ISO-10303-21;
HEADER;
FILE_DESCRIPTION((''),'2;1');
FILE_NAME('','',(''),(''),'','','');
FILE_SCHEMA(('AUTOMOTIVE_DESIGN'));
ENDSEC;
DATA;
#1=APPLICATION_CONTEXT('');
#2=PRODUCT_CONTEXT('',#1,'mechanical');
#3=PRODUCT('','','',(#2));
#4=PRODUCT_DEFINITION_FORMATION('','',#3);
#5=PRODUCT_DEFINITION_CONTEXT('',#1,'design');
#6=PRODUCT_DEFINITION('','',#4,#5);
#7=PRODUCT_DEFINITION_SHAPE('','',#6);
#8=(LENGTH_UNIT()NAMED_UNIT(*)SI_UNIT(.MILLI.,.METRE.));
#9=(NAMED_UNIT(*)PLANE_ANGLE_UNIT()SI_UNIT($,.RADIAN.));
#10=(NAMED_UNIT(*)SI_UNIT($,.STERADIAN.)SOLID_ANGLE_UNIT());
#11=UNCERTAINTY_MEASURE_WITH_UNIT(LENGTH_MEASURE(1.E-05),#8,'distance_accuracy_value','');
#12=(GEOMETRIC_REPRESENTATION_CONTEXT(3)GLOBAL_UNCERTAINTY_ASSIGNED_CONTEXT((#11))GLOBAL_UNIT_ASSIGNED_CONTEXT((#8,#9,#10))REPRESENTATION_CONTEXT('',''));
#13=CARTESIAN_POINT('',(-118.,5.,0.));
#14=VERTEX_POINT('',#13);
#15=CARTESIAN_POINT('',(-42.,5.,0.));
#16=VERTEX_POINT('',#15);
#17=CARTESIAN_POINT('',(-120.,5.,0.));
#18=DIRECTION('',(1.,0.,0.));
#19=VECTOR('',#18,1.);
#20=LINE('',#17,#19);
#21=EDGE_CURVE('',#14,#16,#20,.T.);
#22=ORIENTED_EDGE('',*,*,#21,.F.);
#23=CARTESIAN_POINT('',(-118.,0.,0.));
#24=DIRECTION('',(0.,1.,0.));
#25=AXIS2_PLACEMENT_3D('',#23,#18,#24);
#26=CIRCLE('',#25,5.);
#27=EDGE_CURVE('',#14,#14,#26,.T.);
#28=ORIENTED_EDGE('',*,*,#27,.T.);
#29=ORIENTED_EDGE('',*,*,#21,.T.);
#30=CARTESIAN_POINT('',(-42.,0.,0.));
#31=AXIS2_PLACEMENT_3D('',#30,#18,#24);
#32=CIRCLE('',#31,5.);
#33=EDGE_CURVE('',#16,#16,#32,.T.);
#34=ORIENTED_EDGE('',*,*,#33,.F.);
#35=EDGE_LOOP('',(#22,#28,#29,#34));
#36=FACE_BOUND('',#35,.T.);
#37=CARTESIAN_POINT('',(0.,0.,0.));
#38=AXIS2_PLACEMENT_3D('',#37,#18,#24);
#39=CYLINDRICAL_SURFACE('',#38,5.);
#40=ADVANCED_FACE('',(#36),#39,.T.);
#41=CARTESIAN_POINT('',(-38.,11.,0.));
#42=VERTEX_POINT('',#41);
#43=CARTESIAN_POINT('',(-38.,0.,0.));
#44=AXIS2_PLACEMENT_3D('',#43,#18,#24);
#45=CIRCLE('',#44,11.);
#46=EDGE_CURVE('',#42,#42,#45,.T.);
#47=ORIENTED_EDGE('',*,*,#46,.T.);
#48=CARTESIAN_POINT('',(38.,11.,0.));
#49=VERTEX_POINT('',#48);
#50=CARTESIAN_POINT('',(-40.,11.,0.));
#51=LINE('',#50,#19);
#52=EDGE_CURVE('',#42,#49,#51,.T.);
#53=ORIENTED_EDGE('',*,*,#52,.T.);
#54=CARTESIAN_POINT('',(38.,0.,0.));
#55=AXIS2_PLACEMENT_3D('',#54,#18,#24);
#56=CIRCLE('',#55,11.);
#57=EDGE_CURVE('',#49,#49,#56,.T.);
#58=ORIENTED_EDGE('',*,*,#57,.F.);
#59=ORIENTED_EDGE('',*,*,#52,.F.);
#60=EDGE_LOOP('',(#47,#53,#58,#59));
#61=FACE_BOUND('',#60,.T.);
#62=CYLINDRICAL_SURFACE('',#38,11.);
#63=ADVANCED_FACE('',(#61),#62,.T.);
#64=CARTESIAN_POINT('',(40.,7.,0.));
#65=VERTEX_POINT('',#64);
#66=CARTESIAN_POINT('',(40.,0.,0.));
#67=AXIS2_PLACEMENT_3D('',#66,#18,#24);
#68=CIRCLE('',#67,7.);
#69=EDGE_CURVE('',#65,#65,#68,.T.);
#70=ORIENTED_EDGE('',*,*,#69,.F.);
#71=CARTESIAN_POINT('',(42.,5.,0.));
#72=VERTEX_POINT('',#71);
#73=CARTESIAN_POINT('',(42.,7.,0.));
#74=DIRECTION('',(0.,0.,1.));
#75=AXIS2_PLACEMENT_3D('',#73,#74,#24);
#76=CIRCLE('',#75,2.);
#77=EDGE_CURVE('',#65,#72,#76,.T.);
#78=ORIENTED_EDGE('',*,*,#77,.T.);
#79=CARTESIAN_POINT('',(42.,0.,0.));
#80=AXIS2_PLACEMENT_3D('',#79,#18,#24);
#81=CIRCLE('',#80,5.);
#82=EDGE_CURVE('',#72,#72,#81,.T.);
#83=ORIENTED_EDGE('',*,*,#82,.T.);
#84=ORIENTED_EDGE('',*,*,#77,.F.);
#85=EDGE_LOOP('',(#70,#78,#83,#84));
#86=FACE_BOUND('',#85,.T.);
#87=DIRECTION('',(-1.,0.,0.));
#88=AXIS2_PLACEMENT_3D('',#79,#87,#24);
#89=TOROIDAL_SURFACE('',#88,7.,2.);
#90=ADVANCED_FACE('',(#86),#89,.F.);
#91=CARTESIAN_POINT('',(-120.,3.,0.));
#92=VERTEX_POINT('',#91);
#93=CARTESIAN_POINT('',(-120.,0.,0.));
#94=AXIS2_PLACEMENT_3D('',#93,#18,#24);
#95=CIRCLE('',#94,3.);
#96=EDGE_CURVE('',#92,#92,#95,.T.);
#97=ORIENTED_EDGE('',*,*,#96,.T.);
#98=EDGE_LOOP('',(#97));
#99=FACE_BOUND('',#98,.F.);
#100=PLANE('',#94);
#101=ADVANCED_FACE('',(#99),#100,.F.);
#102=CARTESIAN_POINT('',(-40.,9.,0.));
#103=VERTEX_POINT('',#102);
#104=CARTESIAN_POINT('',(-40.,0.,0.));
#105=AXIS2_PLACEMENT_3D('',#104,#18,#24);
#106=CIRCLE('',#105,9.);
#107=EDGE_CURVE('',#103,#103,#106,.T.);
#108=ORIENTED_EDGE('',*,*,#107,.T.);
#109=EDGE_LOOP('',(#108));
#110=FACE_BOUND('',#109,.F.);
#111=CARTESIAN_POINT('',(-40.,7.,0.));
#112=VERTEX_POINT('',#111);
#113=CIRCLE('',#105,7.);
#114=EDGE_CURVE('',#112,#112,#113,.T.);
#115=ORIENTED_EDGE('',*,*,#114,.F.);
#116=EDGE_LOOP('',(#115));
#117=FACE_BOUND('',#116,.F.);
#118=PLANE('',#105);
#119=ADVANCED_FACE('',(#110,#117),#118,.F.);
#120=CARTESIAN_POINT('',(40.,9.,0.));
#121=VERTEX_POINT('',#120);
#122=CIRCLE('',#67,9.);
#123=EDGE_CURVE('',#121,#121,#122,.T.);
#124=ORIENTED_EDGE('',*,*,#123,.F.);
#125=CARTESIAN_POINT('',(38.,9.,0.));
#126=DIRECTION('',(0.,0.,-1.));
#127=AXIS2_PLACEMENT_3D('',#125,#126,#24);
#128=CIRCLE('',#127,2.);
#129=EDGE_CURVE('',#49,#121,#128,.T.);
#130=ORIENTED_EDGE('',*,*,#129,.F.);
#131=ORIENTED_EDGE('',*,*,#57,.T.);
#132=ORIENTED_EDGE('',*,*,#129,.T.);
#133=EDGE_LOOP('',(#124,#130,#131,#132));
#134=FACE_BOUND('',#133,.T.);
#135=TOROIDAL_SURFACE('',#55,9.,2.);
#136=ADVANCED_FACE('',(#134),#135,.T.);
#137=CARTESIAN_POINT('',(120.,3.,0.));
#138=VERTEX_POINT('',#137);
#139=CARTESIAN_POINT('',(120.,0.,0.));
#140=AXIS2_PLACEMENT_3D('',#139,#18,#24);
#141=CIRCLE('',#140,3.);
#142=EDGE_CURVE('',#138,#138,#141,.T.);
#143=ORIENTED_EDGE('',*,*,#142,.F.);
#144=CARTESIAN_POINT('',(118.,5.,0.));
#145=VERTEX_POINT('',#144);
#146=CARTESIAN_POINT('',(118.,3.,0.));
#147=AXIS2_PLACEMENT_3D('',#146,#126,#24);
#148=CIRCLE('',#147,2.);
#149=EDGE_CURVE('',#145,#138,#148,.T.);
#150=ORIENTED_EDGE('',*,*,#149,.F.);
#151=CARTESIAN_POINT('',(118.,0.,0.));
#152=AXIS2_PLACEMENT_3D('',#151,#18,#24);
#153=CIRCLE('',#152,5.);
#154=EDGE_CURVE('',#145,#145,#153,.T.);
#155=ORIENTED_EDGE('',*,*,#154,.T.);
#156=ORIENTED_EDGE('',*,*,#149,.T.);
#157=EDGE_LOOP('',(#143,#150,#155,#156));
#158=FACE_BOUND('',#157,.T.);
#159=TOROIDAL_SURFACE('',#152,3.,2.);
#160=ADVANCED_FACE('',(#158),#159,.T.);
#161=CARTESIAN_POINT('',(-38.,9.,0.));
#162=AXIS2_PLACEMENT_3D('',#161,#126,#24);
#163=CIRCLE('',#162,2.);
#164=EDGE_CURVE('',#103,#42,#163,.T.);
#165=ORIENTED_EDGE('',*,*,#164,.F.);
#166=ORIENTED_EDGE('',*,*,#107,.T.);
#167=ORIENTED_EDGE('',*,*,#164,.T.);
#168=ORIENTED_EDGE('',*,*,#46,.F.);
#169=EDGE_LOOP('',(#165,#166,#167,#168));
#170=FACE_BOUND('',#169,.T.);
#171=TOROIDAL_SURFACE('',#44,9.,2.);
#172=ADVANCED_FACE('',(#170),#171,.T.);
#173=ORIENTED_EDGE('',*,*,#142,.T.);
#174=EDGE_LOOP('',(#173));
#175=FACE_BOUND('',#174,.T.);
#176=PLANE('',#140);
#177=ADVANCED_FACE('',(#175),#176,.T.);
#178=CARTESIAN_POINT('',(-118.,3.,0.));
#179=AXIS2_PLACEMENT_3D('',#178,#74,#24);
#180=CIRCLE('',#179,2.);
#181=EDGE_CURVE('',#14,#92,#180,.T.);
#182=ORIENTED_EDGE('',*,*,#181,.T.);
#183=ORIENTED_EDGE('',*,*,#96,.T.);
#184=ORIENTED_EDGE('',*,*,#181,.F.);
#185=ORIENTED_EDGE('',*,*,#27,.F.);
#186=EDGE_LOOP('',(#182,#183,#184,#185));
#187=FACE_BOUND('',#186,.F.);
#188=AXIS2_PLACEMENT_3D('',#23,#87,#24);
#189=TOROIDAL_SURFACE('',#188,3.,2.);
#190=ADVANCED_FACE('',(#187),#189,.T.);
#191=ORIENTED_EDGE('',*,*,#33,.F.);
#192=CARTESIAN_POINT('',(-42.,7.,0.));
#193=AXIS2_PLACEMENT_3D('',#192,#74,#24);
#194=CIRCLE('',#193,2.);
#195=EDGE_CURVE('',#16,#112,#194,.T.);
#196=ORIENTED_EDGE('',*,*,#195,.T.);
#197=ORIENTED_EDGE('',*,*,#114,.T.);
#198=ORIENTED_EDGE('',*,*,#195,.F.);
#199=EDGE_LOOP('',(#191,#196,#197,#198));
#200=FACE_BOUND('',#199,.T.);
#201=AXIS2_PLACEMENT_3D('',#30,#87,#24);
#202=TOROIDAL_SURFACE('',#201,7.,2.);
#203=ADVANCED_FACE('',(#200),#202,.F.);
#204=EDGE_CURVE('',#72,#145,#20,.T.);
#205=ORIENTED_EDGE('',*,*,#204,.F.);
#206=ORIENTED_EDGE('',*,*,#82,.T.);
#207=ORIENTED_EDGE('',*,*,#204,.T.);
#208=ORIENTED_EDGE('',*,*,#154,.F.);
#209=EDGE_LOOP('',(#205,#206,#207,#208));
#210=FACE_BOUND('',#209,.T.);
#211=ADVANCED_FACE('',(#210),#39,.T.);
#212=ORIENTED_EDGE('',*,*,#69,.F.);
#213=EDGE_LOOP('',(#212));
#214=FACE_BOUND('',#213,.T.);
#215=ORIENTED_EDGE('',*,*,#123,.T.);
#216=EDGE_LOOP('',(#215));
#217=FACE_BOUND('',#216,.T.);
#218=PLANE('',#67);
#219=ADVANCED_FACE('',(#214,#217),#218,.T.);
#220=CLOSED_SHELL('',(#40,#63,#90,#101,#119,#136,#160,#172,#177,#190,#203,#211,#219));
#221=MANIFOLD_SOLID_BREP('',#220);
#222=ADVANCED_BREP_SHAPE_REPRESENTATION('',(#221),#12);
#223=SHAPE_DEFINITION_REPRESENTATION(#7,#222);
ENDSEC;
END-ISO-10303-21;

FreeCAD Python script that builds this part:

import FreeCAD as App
import Part
import Sketcher


def edges_at(feature, points):
    """Names of the edges that pass closest to the given points."""
    edges = feature.Shape.Edges
    near = lambda p: min(range(len(edges)), key=lambda i: edges[i].distToShape(Part.Vertex(*p))[0])
    return sorted({f"Edge{near(p) + 1}" for p in points})

doc = App.newDocument("Part")
body = doc.addObject("PartDesign::Body", "Body")

sketch1 = body.newObject("Sketcher::SketchObject", "Sketch")
sketch1.AttachmentSupport = (doc.getObject("YZ_Plane"), [""])
sketch1.MapMode = "FlatFace"
sketch1.addGeometry(Part.Circle(App.Vector(0, 0, 0), App.Vector(0, 0, 1), 11), False)
sketch1.addConstraint([
    Sketcher.Constraint("Coincident", 0, 3, -1, 1),
    Sketcher.Constraint("Diameter", 0, 22.0),
])
pad1 = body.newObject("PartDesign::Pad", "Pad")
pad1.Profile = sketch1
pad1.Length = 80
pad1.Midplane = True

sketch2 = body.newObject("Sketcher::SketchObject", "Sketch001")
sketch2.AttachmentSupport = (doc.getObject("YZ_Plane"), [""])
sketch2.MapMode = "FlatFace"
sketch2.addGeometry(Part.Circle(App.Vector(0, 0, 0), App.Vector(0, 0, 1), 5), False)
sketch2.addConstraint([
    Sketcher.Constraint("Coincident", 0, 3, -1, 1),
    Sketcher.Constraint("Diameter", 0, 10.0),
])
pad2 = body.newObject("PartDesign::Pad", "Pad001")
pad2.Profile = sketch2
pad2.Length = 240
pad2.Midplane = True
doc.recompute()

fillet = body.newObject("PartDesign::Fillet", "Fillet")
fillet.Base = (pad2, edges_at(pad2, [
    (-40, -11, 0),
    (-40, -5, 0),
    (40, -11, 0),
    (40, -5, 0),
    (120, -5, 0),
    (-120, -5, 0),
]))
fillet.Radius = 2

doc.recompute()
